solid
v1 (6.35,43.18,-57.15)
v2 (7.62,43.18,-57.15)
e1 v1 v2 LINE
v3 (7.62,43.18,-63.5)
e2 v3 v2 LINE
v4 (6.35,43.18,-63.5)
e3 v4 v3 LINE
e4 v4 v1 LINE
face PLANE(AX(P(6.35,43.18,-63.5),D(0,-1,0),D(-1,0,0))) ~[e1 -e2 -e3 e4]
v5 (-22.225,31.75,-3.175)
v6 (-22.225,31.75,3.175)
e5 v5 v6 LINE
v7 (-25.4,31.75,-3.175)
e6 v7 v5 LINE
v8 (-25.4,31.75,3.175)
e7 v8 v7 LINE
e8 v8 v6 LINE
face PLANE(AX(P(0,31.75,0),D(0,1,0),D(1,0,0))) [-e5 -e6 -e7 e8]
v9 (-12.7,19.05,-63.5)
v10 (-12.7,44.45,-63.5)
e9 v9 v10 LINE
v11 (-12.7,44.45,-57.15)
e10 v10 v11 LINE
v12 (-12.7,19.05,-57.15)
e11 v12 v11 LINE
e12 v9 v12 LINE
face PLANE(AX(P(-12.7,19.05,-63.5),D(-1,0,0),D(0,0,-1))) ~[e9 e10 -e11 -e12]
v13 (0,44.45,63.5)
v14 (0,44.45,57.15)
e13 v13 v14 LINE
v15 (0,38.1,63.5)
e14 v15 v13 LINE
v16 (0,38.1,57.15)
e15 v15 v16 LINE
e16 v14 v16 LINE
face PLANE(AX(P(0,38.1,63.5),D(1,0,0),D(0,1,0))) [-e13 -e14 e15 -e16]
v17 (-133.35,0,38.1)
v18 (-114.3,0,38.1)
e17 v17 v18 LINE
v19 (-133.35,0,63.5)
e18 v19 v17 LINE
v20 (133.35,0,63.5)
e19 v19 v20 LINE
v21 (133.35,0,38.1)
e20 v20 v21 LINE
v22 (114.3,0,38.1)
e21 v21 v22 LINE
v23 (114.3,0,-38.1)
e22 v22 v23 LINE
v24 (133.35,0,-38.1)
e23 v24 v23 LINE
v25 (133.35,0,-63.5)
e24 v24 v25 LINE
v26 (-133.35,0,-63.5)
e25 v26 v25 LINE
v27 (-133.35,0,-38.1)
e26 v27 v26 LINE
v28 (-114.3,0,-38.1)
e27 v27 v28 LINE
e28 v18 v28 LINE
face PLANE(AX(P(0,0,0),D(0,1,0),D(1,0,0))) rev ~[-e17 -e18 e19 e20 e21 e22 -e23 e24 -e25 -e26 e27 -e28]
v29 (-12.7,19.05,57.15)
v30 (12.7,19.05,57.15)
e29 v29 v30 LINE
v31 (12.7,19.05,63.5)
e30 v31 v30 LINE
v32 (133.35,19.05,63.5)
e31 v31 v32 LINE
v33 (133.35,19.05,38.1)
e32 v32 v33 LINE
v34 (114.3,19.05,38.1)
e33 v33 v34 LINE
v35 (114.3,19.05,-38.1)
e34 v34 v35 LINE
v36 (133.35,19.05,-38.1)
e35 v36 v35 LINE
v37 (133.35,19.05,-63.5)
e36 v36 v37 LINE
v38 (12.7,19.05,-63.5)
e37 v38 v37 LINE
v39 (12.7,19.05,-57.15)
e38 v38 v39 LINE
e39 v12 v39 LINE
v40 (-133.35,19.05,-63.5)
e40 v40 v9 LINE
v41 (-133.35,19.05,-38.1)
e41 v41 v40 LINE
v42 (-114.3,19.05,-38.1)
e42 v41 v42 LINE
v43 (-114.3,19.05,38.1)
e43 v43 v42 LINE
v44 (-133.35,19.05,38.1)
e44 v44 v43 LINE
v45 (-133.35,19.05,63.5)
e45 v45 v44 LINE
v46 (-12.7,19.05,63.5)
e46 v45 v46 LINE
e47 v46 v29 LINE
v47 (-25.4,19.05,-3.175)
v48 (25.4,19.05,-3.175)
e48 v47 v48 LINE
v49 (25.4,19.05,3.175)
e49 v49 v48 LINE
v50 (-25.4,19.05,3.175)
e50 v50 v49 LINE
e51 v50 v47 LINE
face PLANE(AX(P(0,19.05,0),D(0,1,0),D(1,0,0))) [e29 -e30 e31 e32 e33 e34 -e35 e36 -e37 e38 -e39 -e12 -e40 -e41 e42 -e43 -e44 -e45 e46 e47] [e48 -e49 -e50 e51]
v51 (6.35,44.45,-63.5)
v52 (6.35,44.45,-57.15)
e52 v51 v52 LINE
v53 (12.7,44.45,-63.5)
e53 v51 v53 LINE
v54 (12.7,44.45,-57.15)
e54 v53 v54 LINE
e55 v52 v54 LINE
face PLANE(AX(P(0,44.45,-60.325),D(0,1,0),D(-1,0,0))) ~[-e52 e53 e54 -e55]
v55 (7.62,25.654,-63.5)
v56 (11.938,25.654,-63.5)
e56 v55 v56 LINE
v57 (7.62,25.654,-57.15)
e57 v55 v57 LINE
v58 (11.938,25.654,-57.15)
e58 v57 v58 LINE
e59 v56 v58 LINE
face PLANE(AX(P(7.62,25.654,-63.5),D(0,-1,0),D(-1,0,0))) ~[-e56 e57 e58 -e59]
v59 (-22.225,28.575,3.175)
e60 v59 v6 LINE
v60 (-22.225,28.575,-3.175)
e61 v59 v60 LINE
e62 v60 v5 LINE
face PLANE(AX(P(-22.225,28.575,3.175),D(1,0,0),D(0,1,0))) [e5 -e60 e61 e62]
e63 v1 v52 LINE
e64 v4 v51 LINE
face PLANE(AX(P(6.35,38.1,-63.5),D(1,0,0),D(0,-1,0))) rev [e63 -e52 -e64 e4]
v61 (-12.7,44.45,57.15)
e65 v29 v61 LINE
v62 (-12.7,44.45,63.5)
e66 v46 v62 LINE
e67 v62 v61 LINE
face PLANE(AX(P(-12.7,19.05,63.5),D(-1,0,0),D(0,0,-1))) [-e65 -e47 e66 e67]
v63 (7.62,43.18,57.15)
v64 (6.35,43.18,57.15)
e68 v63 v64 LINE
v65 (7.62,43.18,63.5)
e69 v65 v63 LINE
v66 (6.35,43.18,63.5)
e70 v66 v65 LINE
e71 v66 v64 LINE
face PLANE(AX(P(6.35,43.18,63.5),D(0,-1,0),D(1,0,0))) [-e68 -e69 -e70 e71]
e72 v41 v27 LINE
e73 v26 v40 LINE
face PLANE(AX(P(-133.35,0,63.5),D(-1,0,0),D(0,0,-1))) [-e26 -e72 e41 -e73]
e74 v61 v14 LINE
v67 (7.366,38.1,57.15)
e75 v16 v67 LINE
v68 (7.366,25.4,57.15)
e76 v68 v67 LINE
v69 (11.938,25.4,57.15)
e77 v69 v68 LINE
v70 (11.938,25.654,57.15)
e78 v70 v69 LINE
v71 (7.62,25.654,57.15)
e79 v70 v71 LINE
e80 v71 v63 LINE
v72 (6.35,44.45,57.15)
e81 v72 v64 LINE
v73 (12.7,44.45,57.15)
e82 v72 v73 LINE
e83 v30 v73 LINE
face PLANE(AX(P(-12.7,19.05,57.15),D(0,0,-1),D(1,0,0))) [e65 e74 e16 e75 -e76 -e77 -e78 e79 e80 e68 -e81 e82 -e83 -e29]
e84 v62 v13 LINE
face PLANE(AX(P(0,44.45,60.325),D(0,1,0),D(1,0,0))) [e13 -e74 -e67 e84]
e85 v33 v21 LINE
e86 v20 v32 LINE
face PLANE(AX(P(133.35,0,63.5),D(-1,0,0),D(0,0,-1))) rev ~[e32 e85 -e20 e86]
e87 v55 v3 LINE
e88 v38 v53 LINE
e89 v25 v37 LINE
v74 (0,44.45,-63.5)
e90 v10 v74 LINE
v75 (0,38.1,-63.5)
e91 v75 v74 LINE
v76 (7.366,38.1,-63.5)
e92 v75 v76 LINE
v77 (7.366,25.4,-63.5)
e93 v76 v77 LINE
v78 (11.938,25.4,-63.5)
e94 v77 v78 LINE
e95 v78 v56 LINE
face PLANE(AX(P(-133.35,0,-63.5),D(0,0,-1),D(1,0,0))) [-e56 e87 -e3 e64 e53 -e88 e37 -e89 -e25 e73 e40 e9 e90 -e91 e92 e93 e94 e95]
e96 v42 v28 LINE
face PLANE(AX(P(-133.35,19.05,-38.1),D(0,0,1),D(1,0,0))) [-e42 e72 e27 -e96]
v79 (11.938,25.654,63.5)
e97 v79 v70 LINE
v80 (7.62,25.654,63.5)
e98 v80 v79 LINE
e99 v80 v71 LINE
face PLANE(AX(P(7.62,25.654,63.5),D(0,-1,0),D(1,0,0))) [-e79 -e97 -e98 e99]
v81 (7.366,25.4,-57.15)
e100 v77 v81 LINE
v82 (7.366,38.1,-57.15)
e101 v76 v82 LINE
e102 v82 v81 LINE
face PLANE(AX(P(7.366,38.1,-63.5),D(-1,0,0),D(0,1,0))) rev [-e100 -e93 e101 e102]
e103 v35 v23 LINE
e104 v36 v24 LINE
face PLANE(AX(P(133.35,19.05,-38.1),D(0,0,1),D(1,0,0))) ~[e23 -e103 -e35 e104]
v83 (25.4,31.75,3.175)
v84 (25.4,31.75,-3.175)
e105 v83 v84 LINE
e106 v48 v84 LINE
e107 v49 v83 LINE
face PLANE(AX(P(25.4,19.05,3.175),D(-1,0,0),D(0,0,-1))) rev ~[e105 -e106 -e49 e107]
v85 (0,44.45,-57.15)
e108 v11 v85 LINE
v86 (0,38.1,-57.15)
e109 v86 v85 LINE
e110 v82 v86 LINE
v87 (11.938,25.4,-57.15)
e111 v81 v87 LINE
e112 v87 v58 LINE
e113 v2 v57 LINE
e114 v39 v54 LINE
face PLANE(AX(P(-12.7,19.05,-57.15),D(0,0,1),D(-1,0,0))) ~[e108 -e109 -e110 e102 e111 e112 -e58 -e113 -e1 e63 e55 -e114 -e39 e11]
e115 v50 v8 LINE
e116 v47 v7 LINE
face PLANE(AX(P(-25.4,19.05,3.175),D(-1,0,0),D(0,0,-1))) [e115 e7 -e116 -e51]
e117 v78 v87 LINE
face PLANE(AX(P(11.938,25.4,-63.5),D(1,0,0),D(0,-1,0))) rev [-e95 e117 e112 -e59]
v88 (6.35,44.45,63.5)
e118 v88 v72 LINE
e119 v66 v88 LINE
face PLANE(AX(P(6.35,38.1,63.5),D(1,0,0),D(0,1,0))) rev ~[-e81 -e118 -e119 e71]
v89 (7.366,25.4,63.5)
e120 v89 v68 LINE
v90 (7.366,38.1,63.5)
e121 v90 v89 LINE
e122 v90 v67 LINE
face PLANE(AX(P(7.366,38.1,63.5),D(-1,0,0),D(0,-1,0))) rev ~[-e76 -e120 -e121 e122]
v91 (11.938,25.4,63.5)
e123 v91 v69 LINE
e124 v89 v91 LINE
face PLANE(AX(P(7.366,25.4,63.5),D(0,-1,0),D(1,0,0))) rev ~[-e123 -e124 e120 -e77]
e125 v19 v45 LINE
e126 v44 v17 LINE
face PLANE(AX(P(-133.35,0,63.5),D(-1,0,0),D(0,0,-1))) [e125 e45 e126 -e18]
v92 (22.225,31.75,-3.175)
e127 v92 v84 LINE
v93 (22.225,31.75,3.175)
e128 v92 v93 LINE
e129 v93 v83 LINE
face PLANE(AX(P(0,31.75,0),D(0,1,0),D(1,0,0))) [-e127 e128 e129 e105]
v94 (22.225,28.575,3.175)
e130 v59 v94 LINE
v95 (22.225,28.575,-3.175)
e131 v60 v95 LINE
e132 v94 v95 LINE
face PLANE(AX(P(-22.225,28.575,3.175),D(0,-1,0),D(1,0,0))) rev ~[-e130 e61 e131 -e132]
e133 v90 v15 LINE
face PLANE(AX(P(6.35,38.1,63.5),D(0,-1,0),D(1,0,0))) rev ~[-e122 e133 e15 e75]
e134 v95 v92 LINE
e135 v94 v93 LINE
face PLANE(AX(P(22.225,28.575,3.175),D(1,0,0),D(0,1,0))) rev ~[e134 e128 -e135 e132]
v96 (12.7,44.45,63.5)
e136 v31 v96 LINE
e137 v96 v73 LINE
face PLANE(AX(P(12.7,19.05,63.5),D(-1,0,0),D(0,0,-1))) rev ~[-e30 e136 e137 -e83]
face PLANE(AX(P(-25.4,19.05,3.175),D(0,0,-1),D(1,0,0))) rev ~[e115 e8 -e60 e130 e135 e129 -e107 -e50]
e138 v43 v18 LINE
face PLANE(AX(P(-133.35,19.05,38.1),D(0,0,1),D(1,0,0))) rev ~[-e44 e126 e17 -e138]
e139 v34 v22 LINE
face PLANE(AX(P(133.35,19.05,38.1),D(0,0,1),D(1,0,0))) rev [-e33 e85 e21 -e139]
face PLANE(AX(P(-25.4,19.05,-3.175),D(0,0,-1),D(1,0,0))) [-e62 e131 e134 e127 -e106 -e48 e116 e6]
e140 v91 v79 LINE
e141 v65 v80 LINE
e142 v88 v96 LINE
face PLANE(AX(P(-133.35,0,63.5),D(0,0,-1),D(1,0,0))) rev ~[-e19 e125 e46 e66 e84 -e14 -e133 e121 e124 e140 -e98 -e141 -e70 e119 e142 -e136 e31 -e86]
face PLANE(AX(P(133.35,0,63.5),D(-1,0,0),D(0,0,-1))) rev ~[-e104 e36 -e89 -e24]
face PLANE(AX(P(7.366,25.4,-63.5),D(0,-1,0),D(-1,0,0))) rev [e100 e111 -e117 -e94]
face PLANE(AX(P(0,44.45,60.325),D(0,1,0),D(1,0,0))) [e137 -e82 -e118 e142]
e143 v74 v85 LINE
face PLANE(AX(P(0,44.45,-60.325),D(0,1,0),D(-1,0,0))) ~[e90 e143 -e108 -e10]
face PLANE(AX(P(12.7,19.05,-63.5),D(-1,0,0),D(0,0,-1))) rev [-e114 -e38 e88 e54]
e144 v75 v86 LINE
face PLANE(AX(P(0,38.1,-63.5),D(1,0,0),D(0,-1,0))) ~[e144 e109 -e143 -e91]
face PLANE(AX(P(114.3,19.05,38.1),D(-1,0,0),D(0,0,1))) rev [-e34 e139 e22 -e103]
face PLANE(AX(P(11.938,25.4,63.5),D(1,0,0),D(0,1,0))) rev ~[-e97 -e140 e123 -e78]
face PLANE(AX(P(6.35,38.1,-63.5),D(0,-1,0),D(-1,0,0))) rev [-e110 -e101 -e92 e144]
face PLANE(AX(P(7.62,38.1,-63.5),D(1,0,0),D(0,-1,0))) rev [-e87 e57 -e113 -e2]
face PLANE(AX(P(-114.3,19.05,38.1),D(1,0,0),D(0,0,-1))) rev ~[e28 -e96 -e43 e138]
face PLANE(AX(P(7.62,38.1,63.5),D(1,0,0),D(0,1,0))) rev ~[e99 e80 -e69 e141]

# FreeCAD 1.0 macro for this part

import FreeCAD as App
import Part
import Sketcher
Q = App.Units.Quantity

doc = App.newDocument("Part")
body = doc.addObject("PartDesign::Body", "Body")

# Sketch on XZ plane
sketch1 = body.newObject("Sketcher::SketchObject", "Sketch")
sketch1.AttachmentSupport = (doc.getObject("XZ_Plane"), [""])
sketch1.MapMode = "FlatFace"
sketch1.addGeometry([
    Part.LineSegment(App.Vector(-133, -64, 0), App.Vector(-133, 64, 0)),
    Part.LineSegment(App.Vector(-133, 64, 0), App.Vector(133, 64, 0)),
    Part.LineSegment(App.Vector(133, 64, 0), App.Vector(133, -64, 0)),
    Part.LineSegment(App.Vector(133, -64, 0), App.Vector(-133, -64, 0)),
], False)
sketch1.addConstraint([
    Sketcher.Constraint("Coincident", 0, 2, 1, 1),
    Sketcher.Constraint("Coincident", 1, 2, 2, 1),
    Sketcher.Constraint("Coincident", 2, 2, 3, 1),
    Sketcher.Constraint("Coincident", 3, 2, 0, 1),
    Sketcher.Constraint("Vertical", 0),
    Sketcher.Constraint("Horizontal", 1),
    Sketcher.Constraint("Vertical", 2),
    Sketcher.Constraint("Horizontal", 3),
    Sketcher.Constraint("Symmetric", 0, 2, 2, 2, -1, 1),
    Sketcher.Constraint("DistanceY", 0, 1, 0, 2, Q("5 in")),
    Sketcher.Constraint("DistanceX", 1, 1, 1, 2, Q("10.5 in")),
])
pad1 = body.newObject("PartDesign::Pad", "Pad")
pad1.Profile = sketch1
pad1.Length = Q("0.75 in")
pad1.Reversed = True

# Sketch on XZ plane
sketch2 = body.newObject("Sketcher::SketchObject", "Sketch001")
sketch2.AttachmentSupport = (doc.getObject("XZ_Plane"), [""])
sketch2.MapMode = "FlatFace"
sketch2.AttachmentOffset = App.Placement(App.Vector(0, 0, -0.75 * 25.4), App.Rotation())
sketch2.addGeometry([
    Part.LineSegment(App.Vector(-133, -38, 0), App.Vector(-133, 38, 0)),
    Part.LineSegment(App.Vector(-133, 38, 0), App.Vector(-114, 38, 0)),
    Part.LineSegment(App.Vector(-114, 38, 0), App.Vector(-114, -38, 0)),
    Part.LineSegment(App.Vector(-114, -38, 0), App.Vector(-133, -38, 0)),
], False)
sketch2.addConstraint([
    Sketcher.Constraint("Coincident", 0, 2, 1, 1),
    Sketcher.Constraint("Coincident", 1, 2, 2, 1),
    Sketcher.Constraint("Coincident", 2, 2, 3, 1),
    Sketcher.Constraint("Coincident", 3, 2, 0, 1),
    Sketcher.Constraint("Vertical", 0),
    Sketcher.Constraint("Horizontal", 1),
    Sketcher.Constraint("Vertical", 2),
    Sketcher.Constraint("Horizontal", 3),
    Sketcher.Constraint("DistanceY", 0, 1, 0, 2, Q("3 in")),
    Sketcher.Constraint("DistanceX", 1, 1, 1, 2, Q("0.75 in")),
    Sketcher.Constraint("DistanceY", -1, 1, 0, 2, Q("1.5 in")),
    Sketcher.Constraint("DistanceX", 1, 2, -1, 1, Q("4.5 in")),
])
pocket1 = body.newObject("PartDesign::Pocket", "Pocket")
pocket1.Profile = sketch2
pocket1.Type = "ThroughAll"
pocket1.Reversed = True
doc.recompute()

mirrored = body.newObject("PartDesign::Mirrored", "Mirrored")
mirrored.Originals = [pocket1]
mirrored.MirrorPlane = (doc.getObject("YZ_Plane"), [""])
body.Tip = mirrored

# Sketch on XZ plane
sketch3 = body.newObject("Sketcher::SketchObject", "Sketch002")
sketch3.AttachmentSupport = (doc.getObject("XZ_Plane"), [""])
sketch3.MapMode = "FlatFace"
sketch3.AttachmentOffset = App.Placement(App.Vector(0, 0, -0.75 * 25.4), App.Rotation())
sketch3.addGeometry([
    Part.LineSegment(App.Vector(-13, 57, 0), App.Vector(-13, 64, 0)),
    Part.LineSegment(App.Vector(-13, 64, 0), App.Vector(13, 64, 0)),
    Part.LineSegment(App.Vector(13, 64, 0), App.Vector(13, 57, 0)),
    Part.LineSegment(App.Vector(13, 57, 0), App.Vector(-13, 57, 0)),
], False)
sketch3.addConstraint([
    Sketcher.Constraint("Coincident", 0, 2, 1, 1),
    Sketcher.Constraint("Coincident", 1, 2, 2, 1),
    Sketcher.Constraint("Coincident", 2, 2, 3, 1),
    Sketcher.Constraint("Coincident", 3, 2, 0, 1),
    Sketcher.Constraint("Vertical", 0),
    Sketcher.Constraint("Horizontal", 1),
    Sketcher.Constraint("Vertical", 2),
    Sketcher.Constraint("Horizontal", 3),
    Sketcher.Constraint("DistanceX", 1, 1, 1, 2, Q("1 in")),
    Sketcher.Constraint("DistanceY", 0, 1, 0, 2, Q("0.25 in")),
    Sketcher.Constraint("DistanceX", 0, 2, -1, 1, Q("0.5 in")),
    Sketcher.Constraint("DistanceY", -1, 1, 0, 2, Q("2.5 in")),
])
pad2 = body.newObject("PartDesign::Pad", "Pad001")
pad2.Profile = sketch3
pad2.Length = Q("1 in")
pad2.Reversed = True

# Sketch on XY plane
sketch4 = body.newObject("Sketcher::SketchObject", "Sketch003")
sketch4.AttachmentSupport = (doc.getObject("XY_Plane"), [""])
sketch4.MapMode = "FlatFace"
sketch4.AttachmentOffset = App.Placement(App.Vector(0, 0, 2.5 * 25.4), App.Rotation())
sketch4.addGeometry([
    Part.LineSegment(App.Vector(0, 44, 0), App.Vector(0, 38, 0)),
    Part.LineSegment(App.Vector(0, 38, 0), App.Vector(6, 38, 0)),
    Part.LineSegment(App.Vector(6, 38, 0), App.Vector(6, 44, 0)),
    Part.LineSegment(App.Vector(6, 44, 0), App.Vector(0, 44, 0)),
], False)
sketch4.addConstraint([
    Sketcher.Constraint("Coincident", 0, 2, 1, 1),
    Sketcher.Constraint("Coincident", 1, 2, 2, 1),
    Sketcher.Constraint("Coincident", 2, 2, 3, 1),
    Sketcher.Constraint("Coincident", 3, 2, 0, 1),
    Sketcher.Constraint("Vertical", 0),
    Sketcher.Constraint("Horizontal", 1),
    Sketcher.Constraint("Vertical", 2),
    Sketcher.Constraint("Horizontal", 3),
    Sketcher.Constraint("PointOnObject", 0, 2, -2),
    Sketcher.Constraint("Equal", 3, 0),
    Sketcher.Constraint("DistanceX", 1, 1, 1, 2, Q("0.25 in")),
    Sketcher.Constraint("DistanceY", -1, 1, 0, 2, Q("1.5 in")),
])
pocket2 = body.newObject("PartDesign::Pocket", "Pocket001")
pocket2.Profile = sketch4
pocket2.Type = "ThroughAll"

# Sketch on XY plane
sketch5 = body.newObject("Sketcher::SketchObject", "Sketch004")
sketch5.AttachmentSupport = (doc.getObject("XY_Plane"), [""])
sketch5.MapMode = "FlatFace"
sketch5.AttachmentOffset = App.Placement(App.Vector(0, 0, 2.5 * 25.4), App.Rotation())
sketch5.addGeometry([
    Part.LineSegment(App.Vector(6.3, 43.2, 0), App.Vector(6.3, 38.1, 0)),
    Part.LineSegment(App.Vector(6.3, 38.1, 0), App.Vector(7.6, 38.1, 0)),
    Part.LineSegment(App.Vector(7.6, 38.1, 0), App.Vector(7.6, 43.2, 0)),
    Part.LineSegment(App.Vector(7.6, 43.2, 0), App.Vector(6.3, 43.2, 0)),
], False)
sketch5.addConstraint([
    Sketcher.Constraint("Coincident", 0, 2, 1, 1),
    Sketcher.Constraint("Coincident", 1, 2, 2, 1),
    Sketcher.Constraint("Coincident", 2, 2, 3, 1),
    Sketcher.Constraint("Coincident", 3, 2, 0, 1),
    Sketcher.Constraint("Vertical", 0),
    Sketcher.Constraint("Horizontal", 1),
    Sketcher.Constraint("Vertical", 2),
    Sketcher.Constraint("Horizontal", 3),
    Sketcher.Constraint("DistanceY", 0, 2, 0, 1, Q("0.2 in")),
    Sketcher.Constraint("DistanceX", 1, 1, 1, 2, Q("0.05 in")),
    Sketcher.Constraint("DistanceY", -1, 1, 0, 2, Q("1.5 in")),
    Sketcher.Constraint("DistanceX", -1, 1, 1, 2, Q("0.3 in")),
])
pocket3 = body.newObject("PartDesign::Pocket", "Pocket002")
pocket3.Profile = sketch5
pocket3.Type = "ThroughAll"

# Sketch on XY plane
sketch6 = body.newObject("Sketcher::SketchObject", "Sketch005")
sketch6.AttachmentSupport = (doc.getObject("XY_Plane"), [""])
sketch6.MapMode = "FlatFace"
sketch6.AttachmentOffset = App.Placement(App.Vector(0, 0, 2.5 * 25.4), App.Rotation())
sketch6.addGeometry([
    Part.LineSegment(App.Vector(7.37, 38.1, 0), App.Vector(7.37, 25.4, 0)),  # 0
    Part.LineSegment(App.Vector(7.37, 25.4, 0), App.Vector(11.94, 25.4, 0)),  # 1
    Part.LineSegment(App.Vector(11.94, 25.4, 0), App.Vector(11.94, 25.65, 0)),  # 2
    Part.LineSegment(App.Vector(11.94, 25.65, 0), App.Vector(7.62, 25.65, 0)),  # 3
    Part.LineSegment(App.Vector(7.62, 25.65, 0), App.Vector(7.62, 38.1, 0)),  # 4
    Part.LineSegment(App.Vector(7.62, 38.1, 0), App.Vector(7.37, 38.1, 0)),  # 5
], False)
sketch6.addConstraint([
    Sketcher.Constraint("Coincident", 0, 2, 1, 1),
    Sketcher.Constraint("Coincident", 1, 2, 2, 1),
    Sketcher.Constraint("Coincident", 2, 2, 3, 1),
    Sketcher.Constraint("Coincident", 3, 2, 4, 1),
    Sketcher.Constraint("Coincident", 4, 2, 5, 1),
    Sketcher.Constraint("Coincident", 5, 2, 0, 1),
    Sketcher.Constraint("Vertical", 0),
    Sketcher.Constraint("Horizontal", 1),
    Sketcher.Constraint("Vertical", 2),
    Sketcher.Constraint("Horizontal", 3),
    Sketcher.Constraint("Vertical", 4),
    Sketcher.Constraint("Horizontal", 5),
    Sketcher.Constraint("Equal", 5, 2),
    Sketcher.Constraint("DistanceY", 0, 2, 0, 1, Q("0.5 in")),
    Sketcher.Constraint("DistanceY", -1, 1, 0, 2, Q("1 in")),
    Sketcher.Constraint("DistanceX", 1, 1, 1, 2, Q("0.18 in")),
    Sketcher.Constraint("DistanceX", 3, 2, 3, 1, Q("0.17 in")),
    Sketcher.Constraint("DistanceX", -1, 1, 3, 2, Q("0.3 in")),
])
pocket4 = body.newObject("PartDesign::Pocket", "Pocket003")
pocket4.Profile = sketch6
pocket4.Type = "ThroughAll"
doc.recompute()

mirrored2 = body.newObject("PartDesign::Mirrored", "Mirrored001")
mirrored2.Originals = [pad2, pocket2, pocket3, pocket4]
mirrored2.MirrorPlane = (doc.getObject("XY_Plane"), [""])
body.Tip = mirrored2

# Sketch on XZ plane
sketch7 = body.newObject("Sketcher::SketchObject", "Sketch006")
sketch7.AttachmentSupport = (doc.getObject("XZ_Plane"), [""])
sketch7.MapMode = "FlatFace"
sketch7.AttachmentOffset = App.Placement(App.Vector(0, 0, -0.75 * 25.4), App.Rotation())
sketch7.addGeometry([
    Part.LineSegment(App.Vector(-25, -3, 0), App.Vector(-25, 3, 0)),
    Part.LineSegment(App.Vector(-25, 3, 0), App.Vector(25, 3, 0)),
    Part.LineSegment(App.Vector(25, 3, 0), App.Vector(25, -3, 0)),
    Part.LineSegment(App.Vector(25, -3, 0), App.Vector(-25, -3, 0)),
], False)
sketch7.addConstraint([
    Sketcher.Constraint("Coincident", 0, 2, 1, 1),
    Sketcher.Constraint("Coincident", 1, 2, 2, 1),
    Sketcher.Constraint("Coincident", 2, 2, 3, 1),
    Sketcher.Constraint("Coincident", 3, 2, 0, 1),
    Sketcher.Constraint("Vertical", 0),
    Sketcher.Constraint("Horizontal", 1),
    Sketcher.Constraint("Vertical", 2),
    Sketcher.Constraint("Horizontal", 3),
    Sketcher.Constraint("Symmetric", 0, 2, 2, 2, -1, 1),
    Sketcher.Constraint("DistanceX", 1, 1, 1, 2, Q("2 in")),
    Sketcher.Constraint("DistanceY", 0, 1, 0, 2, Q("0.25 in")),
])
pad3 = body.newObject("PartDesign::Pad", "Pad002")
pad3.Profile = sketch7
pad3.Length = Q("0.5 in")
pad3.Reversed = True

# Sketch on XY plane
sketch8 = body.newObject("Sketcher::SketchObject", "Sketch007")
sketch8.AttachmentSupport = (doc.getObject("XY_Plane"), [""])
sketch8.MapMode = "FlatFace"
sketch8.AttachmentOffset = App.Placement(App.Vector(0, 0, 0.125 * 25.4), App.Rotation())
sketch8.addGeometry([
    Part.LineSegment(App.Vector(-22, 35, 0), App.Vector(-22, 29, 0)),
    Part.LineSegment(App.Vector(-22, 29, 0), App.Vector(22, 29, 0)),
    Part.LineSegment(App.Vector(22, 29, 0), App.Vector(22, 35, 0)),
    Part.LineSegment(App.Vector(22, 35, 0), App.Vector(-22, 35, 0)),
], False)
sketch8.addConstraint([
    Sketcher.Constraint("Coincident", 0, 2, 1, 1),
    Sketcher.Constraint("Coincident", 1, 2, 2, 1),
    Sketcher.Constraint("Coincident", 2, 2, 3, 1),
    Sketcher.Constraint("Coincident", 3, 2, 0, 1),
    Sketcher.Constraint("Vertical", 0),
    Sketcher.Constraint("Horizontal", 1),
    Sketcher.Constraint("Vertical", 2),
    Sketcher.Constraint("Horizontal", 3),
    Sketcher.Constraint("DistanceX", 1, 1, 1, 2, Q("1.75 in")),
    Sketcher.Constraint("DistanceY", 0, 2, 0, 1, Q("0.25 in")),
    Sketcher.Constraint("DistanceX", 0, 2, -1, 1, Q("0.875 in")),
    Sketcher.Constraint("DistanceY", -1, 1, 0, 2, Q("1.125 in")),
])
pocket5 = body.newObject("PartDesign::Pocket", "Pocket004")
pocket5.Profile = sketch8
pocket5.Type = "UpToFirst"

doc.recompute()
